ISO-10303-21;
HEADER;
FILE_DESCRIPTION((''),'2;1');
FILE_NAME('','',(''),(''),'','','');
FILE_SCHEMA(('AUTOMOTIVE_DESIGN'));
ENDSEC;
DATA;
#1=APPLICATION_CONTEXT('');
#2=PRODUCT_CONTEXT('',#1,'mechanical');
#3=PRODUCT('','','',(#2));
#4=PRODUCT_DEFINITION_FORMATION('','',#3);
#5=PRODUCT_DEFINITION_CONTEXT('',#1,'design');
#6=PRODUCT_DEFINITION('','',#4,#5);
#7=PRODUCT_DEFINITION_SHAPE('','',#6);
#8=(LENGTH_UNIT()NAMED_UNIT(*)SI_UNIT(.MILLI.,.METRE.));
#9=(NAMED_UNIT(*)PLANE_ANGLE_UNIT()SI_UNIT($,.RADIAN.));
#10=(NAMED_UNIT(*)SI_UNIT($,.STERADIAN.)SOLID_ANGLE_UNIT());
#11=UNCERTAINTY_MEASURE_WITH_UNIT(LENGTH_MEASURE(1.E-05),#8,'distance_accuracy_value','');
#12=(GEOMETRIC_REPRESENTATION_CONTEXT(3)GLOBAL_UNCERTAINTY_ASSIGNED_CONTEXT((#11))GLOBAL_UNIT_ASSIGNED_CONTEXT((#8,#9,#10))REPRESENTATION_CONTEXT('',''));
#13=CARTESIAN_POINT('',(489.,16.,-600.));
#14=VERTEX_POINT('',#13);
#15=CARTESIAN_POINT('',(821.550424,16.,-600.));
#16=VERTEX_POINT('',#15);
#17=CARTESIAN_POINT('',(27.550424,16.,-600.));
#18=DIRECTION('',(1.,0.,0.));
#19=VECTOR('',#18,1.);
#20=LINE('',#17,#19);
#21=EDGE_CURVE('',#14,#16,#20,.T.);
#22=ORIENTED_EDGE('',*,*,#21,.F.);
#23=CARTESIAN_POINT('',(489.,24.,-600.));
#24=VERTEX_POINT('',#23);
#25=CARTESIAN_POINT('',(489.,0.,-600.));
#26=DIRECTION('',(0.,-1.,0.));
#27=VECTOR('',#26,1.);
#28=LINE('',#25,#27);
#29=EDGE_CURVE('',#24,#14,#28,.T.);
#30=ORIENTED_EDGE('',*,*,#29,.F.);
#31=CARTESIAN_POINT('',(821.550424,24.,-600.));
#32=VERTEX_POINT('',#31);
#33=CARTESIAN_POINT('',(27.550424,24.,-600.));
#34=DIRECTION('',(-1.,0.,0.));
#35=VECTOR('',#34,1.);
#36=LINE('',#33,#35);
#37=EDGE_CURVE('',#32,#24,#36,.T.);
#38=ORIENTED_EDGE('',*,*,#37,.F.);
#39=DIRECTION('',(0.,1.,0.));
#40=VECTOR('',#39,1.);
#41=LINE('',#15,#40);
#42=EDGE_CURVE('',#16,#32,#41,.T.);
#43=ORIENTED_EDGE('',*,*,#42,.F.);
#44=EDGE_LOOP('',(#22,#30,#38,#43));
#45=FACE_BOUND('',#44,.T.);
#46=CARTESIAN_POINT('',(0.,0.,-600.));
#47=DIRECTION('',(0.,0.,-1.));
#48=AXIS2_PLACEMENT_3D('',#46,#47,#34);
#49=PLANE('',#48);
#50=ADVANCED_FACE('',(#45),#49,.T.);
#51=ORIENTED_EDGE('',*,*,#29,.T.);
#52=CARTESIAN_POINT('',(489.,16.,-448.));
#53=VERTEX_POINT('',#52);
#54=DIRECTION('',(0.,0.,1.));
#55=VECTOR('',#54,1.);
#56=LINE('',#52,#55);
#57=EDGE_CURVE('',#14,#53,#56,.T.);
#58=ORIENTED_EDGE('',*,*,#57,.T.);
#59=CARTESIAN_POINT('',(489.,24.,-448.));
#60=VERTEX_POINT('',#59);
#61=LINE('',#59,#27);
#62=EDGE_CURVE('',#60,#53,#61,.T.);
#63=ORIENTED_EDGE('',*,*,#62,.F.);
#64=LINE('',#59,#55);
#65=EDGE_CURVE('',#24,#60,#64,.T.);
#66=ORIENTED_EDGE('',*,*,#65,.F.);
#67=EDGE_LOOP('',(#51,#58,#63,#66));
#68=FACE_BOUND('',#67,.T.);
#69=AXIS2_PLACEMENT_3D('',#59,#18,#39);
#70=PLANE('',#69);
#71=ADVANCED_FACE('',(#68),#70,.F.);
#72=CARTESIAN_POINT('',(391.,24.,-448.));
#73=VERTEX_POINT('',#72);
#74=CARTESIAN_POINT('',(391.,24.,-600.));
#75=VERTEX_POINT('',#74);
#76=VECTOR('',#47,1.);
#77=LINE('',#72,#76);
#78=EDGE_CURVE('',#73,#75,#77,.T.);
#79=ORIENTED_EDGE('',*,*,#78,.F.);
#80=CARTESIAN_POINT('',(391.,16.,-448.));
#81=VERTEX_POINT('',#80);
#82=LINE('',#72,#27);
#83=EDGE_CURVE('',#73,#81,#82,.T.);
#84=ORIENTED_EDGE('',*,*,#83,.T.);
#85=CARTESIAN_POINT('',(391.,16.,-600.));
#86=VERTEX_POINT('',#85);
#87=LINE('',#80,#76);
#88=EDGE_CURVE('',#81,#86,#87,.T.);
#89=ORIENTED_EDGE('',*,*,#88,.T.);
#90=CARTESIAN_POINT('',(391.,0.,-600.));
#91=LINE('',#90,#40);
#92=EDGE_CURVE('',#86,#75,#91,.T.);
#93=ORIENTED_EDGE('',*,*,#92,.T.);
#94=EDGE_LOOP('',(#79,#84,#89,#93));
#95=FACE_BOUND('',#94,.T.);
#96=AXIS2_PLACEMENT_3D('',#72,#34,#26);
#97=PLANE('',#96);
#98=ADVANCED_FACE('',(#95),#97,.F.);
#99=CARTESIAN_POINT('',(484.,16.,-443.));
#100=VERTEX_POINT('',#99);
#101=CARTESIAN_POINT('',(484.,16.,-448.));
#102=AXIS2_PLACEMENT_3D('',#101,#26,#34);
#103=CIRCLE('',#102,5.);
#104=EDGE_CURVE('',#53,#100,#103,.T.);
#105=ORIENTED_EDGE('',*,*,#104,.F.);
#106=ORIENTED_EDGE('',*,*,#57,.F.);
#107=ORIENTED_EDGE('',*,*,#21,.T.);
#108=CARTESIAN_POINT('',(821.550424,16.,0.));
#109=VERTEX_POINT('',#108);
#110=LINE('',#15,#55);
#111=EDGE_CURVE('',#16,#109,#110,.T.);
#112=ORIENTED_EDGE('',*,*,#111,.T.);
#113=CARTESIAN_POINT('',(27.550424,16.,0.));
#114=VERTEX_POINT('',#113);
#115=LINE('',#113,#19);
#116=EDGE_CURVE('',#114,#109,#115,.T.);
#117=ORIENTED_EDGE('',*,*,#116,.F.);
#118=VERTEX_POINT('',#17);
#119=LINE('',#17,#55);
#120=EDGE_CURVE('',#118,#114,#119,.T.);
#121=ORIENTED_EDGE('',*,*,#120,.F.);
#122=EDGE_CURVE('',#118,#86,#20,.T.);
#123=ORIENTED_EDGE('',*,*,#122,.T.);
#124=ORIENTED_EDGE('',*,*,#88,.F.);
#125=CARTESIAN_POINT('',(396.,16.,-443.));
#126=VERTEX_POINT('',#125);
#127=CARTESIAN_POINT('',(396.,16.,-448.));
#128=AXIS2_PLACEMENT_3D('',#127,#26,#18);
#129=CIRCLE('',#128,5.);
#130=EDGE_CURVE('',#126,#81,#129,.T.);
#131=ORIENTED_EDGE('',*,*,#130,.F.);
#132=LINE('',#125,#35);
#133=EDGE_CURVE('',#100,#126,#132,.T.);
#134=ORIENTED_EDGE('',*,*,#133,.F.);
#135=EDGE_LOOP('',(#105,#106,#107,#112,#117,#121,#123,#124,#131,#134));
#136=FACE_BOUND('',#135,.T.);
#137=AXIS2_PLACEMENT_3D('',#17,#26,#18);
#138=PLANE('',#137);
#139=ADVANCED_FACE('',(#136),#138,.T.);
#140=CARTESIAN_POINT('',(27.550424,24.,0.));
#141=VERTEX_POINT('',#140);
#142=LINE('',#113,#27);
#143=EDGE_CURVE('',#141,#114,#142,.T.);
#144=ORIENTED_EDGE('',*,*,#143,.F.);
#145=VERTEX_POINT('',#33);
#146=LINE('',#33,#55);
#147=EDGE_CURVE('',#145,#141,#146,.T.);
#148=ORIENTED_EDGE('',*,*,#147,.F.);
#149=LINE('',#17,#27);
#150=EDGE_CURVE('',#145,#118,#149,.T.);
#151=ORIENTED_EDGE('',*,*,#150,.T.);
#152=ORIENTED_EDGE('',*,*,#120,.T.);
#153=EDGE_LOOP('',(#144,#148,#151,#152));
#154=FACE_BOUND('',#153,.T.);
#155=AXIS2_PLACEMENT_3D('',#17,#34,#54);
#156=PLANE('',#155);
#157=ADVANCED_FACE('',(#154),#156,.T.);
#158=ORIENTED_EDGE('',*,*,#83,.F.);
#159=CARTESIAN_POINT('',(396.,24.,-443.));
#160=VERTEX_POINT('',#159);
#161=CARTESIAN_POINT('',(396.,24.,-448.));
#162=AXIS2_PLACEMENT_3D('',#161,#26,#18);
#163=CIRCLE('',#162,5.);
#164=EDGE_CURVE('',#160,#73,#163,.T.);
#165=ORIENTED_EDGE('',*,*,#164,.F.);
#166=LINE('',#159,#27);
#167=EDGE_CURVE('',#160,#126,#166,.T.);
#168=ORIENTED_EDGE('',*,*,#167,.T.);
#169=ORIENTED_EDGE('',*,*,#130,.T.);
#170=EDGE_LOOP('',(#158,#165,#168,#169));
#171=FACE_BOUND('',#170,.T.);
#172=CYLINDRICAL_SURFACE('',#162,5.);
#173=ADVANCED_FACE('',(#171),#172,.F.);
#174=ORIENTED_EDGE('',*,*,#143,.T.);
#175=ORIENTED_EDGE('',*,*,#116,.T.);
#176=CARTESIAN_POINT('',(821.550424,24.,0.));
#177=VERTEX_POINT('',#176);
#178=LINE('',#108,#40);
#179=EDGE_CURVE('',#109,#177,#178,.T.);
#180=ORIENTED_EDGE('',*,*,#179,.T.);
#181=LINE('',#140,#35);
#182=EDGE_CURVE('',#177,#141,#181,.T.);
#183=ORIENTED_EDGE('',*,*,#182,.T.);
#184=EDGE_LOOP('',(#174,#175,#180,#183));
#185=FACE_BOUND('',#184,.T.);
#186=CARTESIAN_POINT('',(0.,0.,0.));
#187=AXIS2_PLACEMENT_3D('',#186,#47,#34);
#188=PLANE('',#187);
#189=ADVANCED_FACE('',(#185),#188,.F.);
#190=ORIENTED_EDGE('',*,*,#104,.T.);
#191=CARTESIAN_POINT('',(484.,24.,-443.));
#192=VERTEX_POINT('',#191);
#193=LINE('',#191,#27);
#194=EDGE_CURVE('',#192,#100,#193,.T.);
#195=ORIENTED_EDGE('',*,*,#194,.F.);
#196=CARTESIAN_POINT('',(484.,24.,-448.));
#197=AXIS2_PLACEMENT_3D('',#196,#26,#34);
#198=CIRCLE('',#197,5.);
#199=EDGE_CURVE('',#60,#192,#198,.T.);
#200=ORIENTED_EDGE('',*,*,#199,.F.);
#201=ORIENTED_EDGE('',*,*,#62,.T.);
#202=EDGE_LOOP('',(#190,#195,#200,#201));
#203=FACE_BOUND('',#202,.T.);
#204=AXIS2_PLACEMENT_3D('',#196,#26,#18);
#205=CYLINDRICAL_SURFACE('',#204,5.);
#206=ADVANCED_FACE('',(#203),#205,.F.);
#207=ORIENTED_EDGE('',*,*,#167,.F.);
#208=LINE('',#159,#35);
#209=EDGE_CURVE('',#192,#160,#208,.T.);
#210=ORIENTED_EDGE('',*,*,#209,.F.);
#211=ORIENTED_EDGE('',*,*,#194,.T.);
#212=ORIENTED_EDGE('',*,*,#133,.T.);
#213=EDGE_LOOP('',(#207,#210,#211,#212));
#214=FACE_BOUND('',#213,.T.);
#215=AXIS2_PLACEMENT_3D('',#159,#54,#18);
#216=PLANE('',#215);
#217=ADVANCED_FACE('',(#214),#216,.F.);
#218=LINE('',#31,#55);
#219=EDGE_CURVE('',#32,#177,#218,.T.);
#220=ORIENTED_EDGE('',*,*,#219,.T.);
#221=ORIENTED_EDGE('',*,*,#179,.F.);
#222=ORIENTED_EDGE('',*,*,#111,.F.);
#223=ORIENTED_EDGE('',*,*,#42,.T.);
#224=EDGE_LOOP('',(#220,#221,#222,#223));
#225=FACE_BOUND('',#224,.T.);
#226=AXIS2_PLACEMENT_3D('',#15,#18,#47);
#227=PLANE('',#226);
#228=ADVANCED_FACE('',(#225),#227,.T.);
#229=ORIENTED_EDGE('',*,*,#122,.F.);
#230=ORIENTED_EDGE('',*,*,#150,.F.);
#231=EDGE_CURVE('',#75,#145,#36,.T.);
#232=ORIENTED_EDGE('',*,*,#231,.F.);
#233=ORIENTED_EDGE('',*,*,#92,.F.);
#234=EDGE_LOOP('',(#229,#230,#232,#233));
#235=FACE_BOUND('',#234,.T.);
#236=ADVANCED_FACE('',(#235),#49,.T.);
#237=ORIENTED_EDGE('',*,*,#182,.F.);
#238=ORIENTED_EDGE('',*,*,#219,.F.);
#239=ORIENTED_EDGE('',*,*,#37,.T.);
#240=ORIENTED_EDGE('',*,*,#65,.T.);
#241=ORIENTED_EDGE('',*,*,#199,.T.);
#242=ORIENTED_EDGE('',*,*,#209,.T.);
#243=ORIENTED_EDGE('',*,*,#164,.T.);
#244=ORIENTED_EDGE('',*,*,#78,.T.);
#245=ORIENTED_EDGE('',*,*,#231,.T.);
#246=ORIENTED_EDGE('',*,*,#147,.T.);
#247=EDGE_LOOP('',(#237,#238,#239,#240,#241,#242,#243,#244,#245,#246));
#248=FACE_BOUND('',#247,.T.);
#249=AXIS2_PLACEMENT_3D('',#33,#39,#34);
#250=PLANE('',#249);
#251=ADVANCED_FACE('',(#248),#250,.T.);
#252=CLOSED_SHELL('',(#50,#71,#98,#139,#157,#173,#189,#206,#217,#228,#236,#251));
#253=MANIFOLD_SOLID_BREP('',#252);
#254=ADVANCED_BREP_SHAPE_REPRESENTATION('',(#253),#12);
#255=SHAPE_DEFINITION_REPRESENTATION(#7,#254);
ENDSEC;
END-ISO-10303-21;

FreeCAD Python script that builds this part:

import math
import FreeCAD as App
import Part
import Sketcher
Q = App.Units.Quantity

doc = App.newDocument("Part")
body = doc.addObject("PartDesign::Body", "Body")

sketch1 = doc.addObject("Sketcher::SketchObject", "Sketch")
body.addObject(sketch1)
sketch1.AttachmentSupport = (doc.XY_Plane, [""])
sketch1.MapMode = "FlatFace"
sketch1.addGeometry(Part.LineSegment(App.Vector(28, 24, 0), App.Vector(28, 16, 0)), False)
sketch1.addGeometry(Part.LineSegment(App.Vector(28, 16, 0), App.Vector(822, 16, 0)), False)
sketch1.addGeometry(Part.LineSegment(App.Vector(822, 16, 0), App.Vector(822, 24, 0)), False)
sketch1.addGeometry(Part.LineSegment(App.Vector(822, 24, 0), App.Vector(28, 24, 0)), False)
sketch1.addConstraint(Sketcher.Constraint("Coincident", 0, 2, 1, 1))
sketch1.addConstraint(Sketcher.Constraint("Coincident", 1, 2, 2, 1))
sketch1.addConstraint(Sketcher.Constraint("Coincident", 2, 2, 3, 1))
sketch1.addConstraint(Sketcher.Constraint("Coincident", 3, 2, 0, 1))
sketch1.addConstraint(Sketcher.Constraint("Vertical", 0))
sketch1.addConstraint(Sketcher.Constraint("Horizontal", 1))
sketch1.addConstraint(Sketcher.Constraint("Vertical", 2))
sketch1.addConstraint(Sketcher.Constraint("Horizontal", 3))
sketch1.addConstraint(Sketcher.Constraint("DistanceX", 1, 1, 1, 2, Q("794 mm")))
sketch1.addConstraint(Sketcher.Constraint("DistanceY", 0, 2, 0, 1, Q("8 mm")))
sketch1.addConstraint(Sketcher.Constraint("DistanceY", -1, 1, 0, 2, Q("16 mm")))
sketch1.addConstraint(Sketcher.Constraint("DistanceX", -1, 1, 0, 2, Q("27.550424 mm")))
pad1 = doc.addObject("PartDesign::Pad", "Pad")
body.addObject(pad1)
pad1.Profile = sketch1
pad1.Length = 600
pad1.Reversed = True

sketch2 = doc.addObject("Sketcher::SketchObject", "Sketch001")
body.addObject(sketch2)
sketch2.AttachmentSupport = (doc.XZ_Plane, [""])
sketch2.MapMode = "FlatFace"
sketch2.AttachmentOffset = App.Placement(App.Vector(0, 0, -16), App.Rotation())
sketch2.addGeometry(Part.LineSegment(App.Vector(484, -443, 0), App.Vector(396, -443, 0)), False)
sketch2.addGeometry(Part.ArcOfCircle(Part.Circle(App.Vector(396, -448, 0), App.Vector(0, 0, 1), 5), math.radians(90), math.radians(180)), False)
sketch2.addGeometry(Part.LineSegment(App.Vector(391, -448, 0), App.Vector(391, -603, 0)), False)
sketch2.addGeometry(Part.LineSegment(App.Vector(391, -603, 0), App.Vector(489, -603, 0)), False)
sketch2.addGeometry(Part.LineSegment(App.Vector(489, -603, 0), App.Vector(489, -448, 0)), False)
sketch2.addGeometry(Part.ArcOfCircle(Part.Circle(App.Vector(484, -448, 0), App.Vector(0, 0, 1), 5), math.radians(0), math.radians(90)), False)
sketch2.addConstraint(Sketcher.Constraint("Tangent", 0, 2, 1, 1))
sketch2.addConstraint(Sketcher.Constraint("Tangent", 1, 2, 2, 1))
sketch2.addConstraint(Sketcher.Constraint("Coincident", 2, 2, 3, 1))
sketch2.addConstraint(Sketcher.Constraint("Coincident", 3, 2, 4, 1))
sketch2.addConstraint(Sketcher.Constraint("Tangent", 4, 2, 5, 1))
sketch2.addConstraint(Sketcher.Constraint("Tangent", 5, 2, 0, 1))
sketch2.addConstraint(Sketcher.Constraint("Horizontal", 0))
sketch2.addConstraint(Sketcher.Constraint("Vertical", 2))
sketch2.addConstraint(Sketcher.Constraint("Horizontal", 3))
sketch2.addConstraint(Sketcher.Constraint("Vertical", 4))
sketch2.addConstraint(Sketcher.Constraint("Equal", 1, 5))
sketch2.addConstraint(Sketcher.Constraint("Radius", 1, Q("5 mm")))
sketch2.addConstraint(Sketcher.Constraint("DistanceX", 0, 2, 0, 1, Q("88 mm")))
sketch2.addConstraint(Sketcher.Constraint("DistanceY", 2, 2, 2, 1, Q("155 mm")))
sketch2.addConstraint(Sketcher.Constraint("DistanceX", -1, 1, 1, 3, Q("396 mm")))
sketch2.addConstraint(Sketcher.Constraint("DistanceY", 1, 3, -1, 1, Q("448 mm")))
pocket1 = doc.addObject("PartDesign::Pocket", "Pocket")
body.addObject(pocket1)
pocket1.Profile = sketch2
pocket1.Type = "ThroughAll"

doc.recompute()
